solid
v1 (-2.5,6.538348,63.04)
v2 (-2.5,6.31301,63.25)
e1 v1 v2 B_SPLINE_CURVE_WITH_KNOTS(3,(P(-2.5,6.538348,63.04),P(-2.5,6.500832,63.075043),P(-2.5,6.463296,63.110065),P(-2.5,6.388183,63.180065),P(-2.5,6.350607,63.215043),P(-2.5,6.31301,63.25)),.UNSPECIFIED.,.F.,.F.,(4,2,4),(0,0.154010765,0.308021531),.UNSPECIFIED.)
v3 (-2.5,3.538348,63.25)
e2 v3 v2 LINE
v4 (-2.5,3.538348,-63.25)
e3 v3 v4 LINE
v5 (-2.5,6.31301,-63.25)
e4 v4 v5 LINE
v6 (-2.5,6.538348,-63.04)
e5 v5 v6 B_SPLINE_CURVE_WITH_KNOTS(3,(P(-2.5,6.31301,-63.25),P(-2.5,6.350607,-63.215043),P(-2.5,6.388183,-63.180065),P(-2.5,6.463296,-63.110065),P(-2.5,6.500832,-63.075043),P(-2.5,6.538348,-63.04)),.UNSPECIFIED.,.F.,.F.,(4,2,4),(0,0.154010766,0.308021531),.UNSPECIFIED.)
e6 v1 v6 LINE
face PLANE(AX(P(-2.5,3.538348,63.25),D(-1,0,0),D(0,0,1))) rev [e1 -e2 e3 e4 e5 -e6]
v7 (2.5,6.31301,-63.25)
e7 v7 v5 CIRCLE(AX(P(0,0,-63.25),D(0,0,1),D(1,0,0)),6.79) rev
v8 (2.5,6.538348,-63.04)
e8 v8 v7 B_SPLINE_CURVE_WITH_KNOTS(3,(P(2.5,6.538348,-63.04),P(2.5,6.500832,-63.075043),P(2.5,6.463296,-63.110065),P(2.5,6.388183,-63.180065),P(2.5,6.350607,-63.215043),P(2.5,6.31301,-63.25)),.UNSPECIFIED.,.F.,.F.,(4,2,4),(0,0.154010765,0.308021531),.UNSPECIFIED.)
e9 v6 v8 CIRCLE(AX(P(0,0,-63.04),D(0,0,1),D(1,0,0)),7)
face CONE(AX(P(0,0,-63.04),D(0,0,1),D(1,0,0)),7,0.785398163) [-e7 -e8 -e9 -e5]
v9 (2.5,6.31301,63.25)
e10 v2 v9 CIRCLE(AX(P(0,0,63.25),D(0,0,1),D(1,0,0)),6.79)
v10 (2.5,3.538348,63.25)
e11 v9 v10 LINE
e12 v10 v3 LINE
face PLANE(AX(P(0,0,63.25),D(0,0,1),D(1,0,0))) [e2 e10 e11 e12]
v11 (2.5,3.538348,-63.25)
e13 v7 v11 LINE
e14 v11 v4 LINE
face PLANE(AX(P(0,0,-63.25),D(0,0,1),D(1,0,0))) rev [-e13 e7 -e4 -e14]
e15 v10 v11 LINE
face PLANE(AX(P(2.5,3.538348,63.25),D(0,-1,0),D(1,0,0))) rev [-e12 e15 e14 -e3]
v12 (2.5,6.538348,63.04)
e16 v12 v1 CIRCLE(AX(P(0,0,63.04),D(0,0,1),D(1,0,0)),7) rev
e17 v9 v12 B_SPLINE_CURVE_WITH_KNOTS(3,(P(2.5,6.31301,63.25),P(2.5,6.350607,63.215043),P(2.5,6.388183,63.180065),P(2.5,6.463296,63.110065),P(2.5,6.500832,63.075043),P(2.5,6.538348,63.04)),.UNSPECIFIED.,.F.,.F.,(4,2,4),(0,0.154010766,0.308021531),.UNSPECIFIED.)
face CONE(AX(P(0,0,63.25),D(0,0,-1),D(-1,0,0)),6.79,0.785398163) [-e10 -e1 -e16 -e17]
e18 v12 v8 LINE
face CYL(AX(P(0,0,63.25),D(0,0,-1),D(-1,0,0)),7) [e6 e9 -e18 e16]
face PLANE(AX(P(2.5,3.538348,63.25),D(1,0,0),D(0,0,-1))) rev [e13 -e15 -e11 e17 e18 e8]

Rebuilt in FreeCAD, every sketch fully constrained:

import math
import FreeCAD as App
import Part
import Sketcher
from FreeCAD import Vector
Q = App.Units.Quantity


def edges_at(feature, points):
    """Names of the edges that pass closest to the given points."""
    edges = feature.Shape.Edges
    near = lambda p: min(range(len(edges)), key=lambda i: edges[i].distToShape(Part.Vertex(*p))[0])
    return sorted({f"Edge{near(p) + 1}" for p in points})

doc = App.newDocument("Part")
params = doc.addObject("Spreadsheet::Sheet", "Params")
for row, (alias, value) in enumerate([
    ("sketch1_radius", "7 mm"),
    ("sketch1_width", "5 mm"),
    ("sketch1_height", "3 mm"),
    ("pad1_length", "63.25 mm"),
    ("pad1_length2", "63.25 mm"),
    ("chamfer_size", "0.21 mm"),
], start=1):
    params.set(f"A{row}", alias)
    params.set(f"B{row}", "=" + value)
    params.setAlias(f"B{row}", alias)

body = doc.addObject("PartDesign::Body", "Body")

# Sketch on XY plane
sketch1 = body.newObject("Sketcher::SketchObject", "Sketch")
sketch1.AttachmentSupport = (doc.getObject("XY_Plane"), [""])
sketch1.MapMode = "FlatFace"
sketch1.addGeometry([
    Part.LineSegment(Vector(-2.5, 3.5, 0), Vector(-2.5, 6.5, 0)),
    Part.ArcOfCircle(Part.Circle(Vector(0, 0, 0), Vector(0, 0, 1), 7), math.radians(111), math.radians(429)),
    Part.LineSegment(Vector(2.5, 6.5, 0), Vector(2.5, 3.5, 0)),
    Part.LineSegment(Vector(2.5, 3.5, 0), Vector(-2.5, 3.5, 0)),
], False)
sketch1.addConstraint([
    Sketcher.Constraint("Coincident", 0, 2, 1, 1),
    Sketcher.Constraint("Coincident", 1, 2, 2, 1),
    Sketcher.Constraint("Coincident", 2, 2, 3, 1),
    Sketcher.Constraint("Coincident", 3, 2, 0, 1),
    Sketcher.Constraint("Vertical", 0),
    Sketcher.Constraint("Vertical", 2),
    Sketcher.Constraint("Horizontal", 3),
    Sketcher.Constraint("Coincident", 1, 3, -1, 1),
    Sketcher.Constraint("Horizontal", 0, 2, 1, 2),
    Sketcher.Constraint("Radius", 1, Q("7 mm")),
    Sketcher.Constraint("DistanceX", 3, 2, 3, 1, Q("5 mm")),
    Sketcher.Constraint("DistanceY", 0, 1, 0, 2, Q("3 mm")),
])
sketch1.setExpression("Constraints[9]", "Params.sketch1_radius")
sketch1.setExpression("Constraints[10]", "Params.sketch1_width")
sketch1.setExpression("Constraints[11]", "Params.sketch1_height")
pad1 = body.newObject("PartDesign::Pad", "Pad")
pad1.Profile = sketch1
pad1.Type = "TwoLengths"
pad1.setExpression("Length", "Params.pad1_length")
pad1.setExpression("Length2", "Params.pad1_length2")
doc.recompute()

chamfer = body.newObject("PartDesign::Chamfer", "Chamfer")
chamfer.Base = (pad1, edges_at(pad1, [(0, -7, -63.25), (0, -7, 63.25)]))
chamfer.setExpression("Size", "Params.chamfer_size")

doc.recompute()
